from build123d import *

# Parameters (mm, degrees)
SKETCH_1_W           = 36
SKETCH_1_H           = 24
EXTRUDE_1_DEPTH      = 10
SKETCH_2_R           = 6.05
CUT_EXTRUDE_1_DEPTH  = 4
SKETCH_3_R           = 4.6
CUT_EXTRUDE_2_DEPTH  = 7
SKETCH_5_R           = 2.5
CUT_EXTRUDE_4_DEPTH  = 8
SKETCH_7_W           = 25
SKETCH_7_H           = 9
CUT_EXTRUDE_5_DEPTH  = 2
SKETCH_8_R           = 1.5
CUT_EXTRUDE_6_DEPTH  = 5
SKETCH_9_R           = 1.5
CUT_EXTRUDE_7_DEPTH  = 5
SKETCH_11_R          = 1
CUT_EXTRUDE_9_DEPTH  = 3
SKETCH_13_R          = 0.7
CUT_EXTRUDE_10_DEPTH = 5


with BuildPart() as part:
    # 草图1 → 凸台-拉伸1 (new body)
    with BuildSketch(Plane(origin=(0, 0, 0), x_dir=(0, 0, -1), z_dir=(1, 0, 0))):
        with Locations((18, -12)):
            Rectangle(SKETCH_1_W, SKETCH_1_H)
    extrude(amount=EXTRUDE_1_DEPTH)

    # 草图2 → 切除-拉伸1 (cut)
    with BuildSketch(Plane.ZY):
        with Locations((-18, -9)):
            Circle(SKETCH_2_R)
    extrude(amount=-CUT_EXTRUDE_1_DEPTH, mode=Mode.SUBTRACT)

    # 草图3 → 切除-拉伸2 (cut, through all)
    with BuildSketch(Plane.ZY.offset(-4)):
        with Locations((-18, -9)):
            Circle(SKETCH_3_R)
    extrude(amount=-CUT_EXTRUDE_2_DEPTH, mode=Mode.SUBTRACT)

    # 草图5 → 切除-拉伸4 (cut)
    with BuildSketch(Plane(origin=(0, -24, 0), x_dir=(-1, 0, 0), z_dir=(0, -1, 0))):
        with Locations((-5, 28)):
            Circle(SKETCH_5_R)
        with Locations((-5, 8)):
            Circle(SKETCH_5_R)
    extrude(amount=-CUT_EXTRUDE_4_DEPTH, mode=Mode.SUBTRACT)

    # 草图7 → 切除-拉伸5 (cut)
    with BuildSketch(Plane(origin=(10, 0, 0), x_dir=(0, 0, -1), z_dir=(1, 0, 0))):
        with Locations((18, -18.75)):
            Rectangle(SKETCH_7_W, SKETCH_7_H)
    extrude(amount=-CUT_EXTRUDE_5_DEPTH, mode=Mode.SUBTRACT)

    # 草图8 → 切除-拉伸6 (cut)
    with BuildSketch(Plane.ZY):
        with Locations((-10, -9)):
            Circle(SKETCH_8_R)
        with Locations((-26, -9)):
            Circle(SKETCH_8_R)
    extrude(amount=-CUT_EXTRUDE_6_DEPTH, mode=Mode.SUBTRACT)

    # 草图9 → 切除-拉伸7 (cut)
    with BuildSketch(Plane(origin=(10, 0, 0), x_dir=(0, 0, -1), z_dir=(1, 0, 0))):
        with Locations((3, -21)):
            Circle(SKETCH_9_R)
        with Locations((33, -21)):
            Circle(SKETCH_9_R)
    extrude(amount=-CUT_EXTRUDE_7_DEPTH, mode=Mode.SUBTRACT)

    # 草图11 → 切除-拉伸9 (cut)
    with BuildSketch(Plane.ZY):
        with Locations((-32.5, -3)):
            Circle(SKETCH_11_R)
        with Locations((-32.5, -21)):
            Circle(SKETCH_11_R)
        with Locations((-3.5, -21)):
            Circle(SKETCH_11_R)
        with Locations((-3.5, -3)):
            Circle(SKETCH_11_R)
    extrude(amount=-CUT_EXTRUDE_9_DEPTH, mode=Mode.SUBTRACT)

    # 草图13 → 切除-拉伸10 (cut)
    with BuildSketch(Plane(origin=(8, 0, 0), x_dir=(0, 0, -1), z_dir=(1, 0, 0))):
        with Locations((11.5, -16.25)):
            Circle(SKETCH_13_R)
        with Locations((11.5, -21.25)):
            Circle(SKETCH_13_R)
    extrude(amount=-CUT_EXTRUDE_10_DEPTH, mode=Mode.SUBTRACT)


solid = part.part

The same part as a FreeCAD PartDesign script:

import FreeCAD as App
import Part
import Sketcher

V = App.Vector
Q = App.Units.Quantity

doc = App.newDocument("Part")
body = doc.addObject("PartDesign::Body", "Body")

# Sketch on YZ plane
sketch1 = body.newObject("Sketcher::SketchObject", "Sketch")
sketch1.AttachmentSupport = (doc.getObject("YZ_Plane"), [""])
sketch1.MapMode = "FlatFace"
sketch1.addGeometry([
    Part.LineSegment(V(0, 0, 0), V(-24, 0, 0)),
    Part.LineSegment(V(-24, 0, 0), V(-24, -36, 0)),
    Part.LineSegment(V(-24, -36, 0), V(0, -36, 0)),
    Part.LineSegment(V(0, -36, 0), V(0, 0, 0)),
], False)
sketch1.addConstraint([
    Sketcher.Constraint("Coincident", 0, 2, 1, 1),
    Sketcher.Constraint("Coincident", 1, 2, 2, 1),
    Sketcher.Constraint("Coincident", 2, 2, 3, 1),
    Sketcher.Constraint("Coincident", 3, 2, 0, 1),
    Sketcher.Constraint("Horizontal", 0),
    Sketcher.Constraint("Vertical", 1),
    Sketcher.Constraint("Horizontal", 2),
    Sketcher.Constraint("Vertical", 3),
    Sketcher.Constraint("Coincident", 3, 2, -1, 1),
    Sketcher.Constraint("DistanceX", 0, 2, 0, 1, Q("24 mm")),
    Sketcher.Constraint("DistanceY", 1, 2, 1, 1, Q("36 mm")),
])
pad1 = body.newObject("PartDesign::Pad", "Pad")
pad1.Profile = sketch1
pad1.Length = 10

# Sketch on YZ plane
sketch2 = body.newObject("Sketcher::SketchObject", "Sketch001")
sketch2.AttachmentSupport = (doc.getObject("YZ_Plane"), [""])
sketch2.MapMode = "FlatFace"
sketch2.addGeometry(Part.Circle(V(-9, -18, 0), V(0, 0, 1), 6), False)
sketch2.addConstraint([
    Sketcher.Constraint("Diameter", 0, Q("12.1 mm")),
    Sketcher.Constraint("DistanceX", 0, 3, -1, 1, Q("9 mm")),
    Sketcher.Constraint("DistanceY", 0, 3, -1, 1, Q("18 mm")),
])
pocket1 = body.newObject("PartDesign::Pocket", "Pocket")
pocket1.Profile = sketch2
pocket1.Length = 4
pocket1.Reversed = True

# Sketch on YZ plane
sketch3 = body.newObject("Sketcher::SketchObject", "Sketch002")
sketch3.AttachmentSupport = (doc.getObject("YZ_Plane"), [""])
sketch3.MapMode = "FlatFace"
sketch3.AttachmentOffset = App.Placement(V(0, 0, 4), App.Rotation())
sketch3.addGeometry(Part.Circle(V(-9, -18, 0), V(0, 0, 1), 4.6), False)
sketch3.addConstraint([
    Sketcher.Constraint("Diameter", 0, Q("9.2 mm")),
    Sketcher.Constraint("DistanceX", 0, 3, -1, 1, Q("9 mm")),
    Sketcher.Constraint("DistanceY", 0, 3, -1, 1, Q("18 mm")),
])
pocket2 = body.newObject("PartDesign::Pocket", "Pocket001")
pocket2.Profile = sketch3
pocket2.Type = "ThroughAll"
pocket2.Reversed = True

# Sketch on XZ plane
sketch4 = body.newObject("Sketcher::SketchObject", "Sketch003")
sketch4.AttachmentSupport = (doc.getObject("XZ_Plane"), [""])
sketch4.MapMode = "FlatFace"
sketch4.AttachmentOffset = App.Placement(V(0, 0, 24), App.Rotation())
sketch4.addGeometry([
    Part.Circle(V(5, -28, 0), V(0, 0, 1), 2.5),
    Part.Circle(V(5, -8, 0), V(0, 0, 1), 2.5),
], False)
sketch4.addConstraint([
    Sketcher.Constraint("Equal", 0, 1),
    Sketcher.Constraint("Vertical", 0, 3, 1, 3),
    Sketcher.Constraint("Diameter", 0, Q("5 mm")),
    Sketcher.Constraint("DistanceX", -1, 1, 0, 3, Q("5 mm")),
    Sketcher.Constraint("DistanceY", 0, 3, -1, 1, Q("28 mm")),
    Sketcher.Constraint("DistanceY", 1, 3, -1, 1, Q("8 mm")),
])
pocket3 = body.newObject("PartDesign::Pocket", "Pocket002")
pocket3.Profile = sketch4
pocket3.Length = 8

# Sketch on YZ plane
sketch5 = body.newObject("Sketcher::SketchObject", "Sketch004")
sketch5.AttachmentSupport = (doc.getObject("YZ_Plane"), [""])
sketch5.MapMode = "FlatFace"
sketch5.AttachmentOffset = App.Placement(V(0, 0, 10), App.Rotation())
sketch5.addGeometry([
    Part.LineSegment(V(-14, -6, 0), V(-23, -6, 0)),
    Part.LineSegment(V(-23, -6, 0), V(-23, -30, 0)),
    Part.LineSegment(V(-23, -30, 0), V(-14, -30, 0)),
    Part.LineSegment(V(-14, -30, 0), V(-14, -6, 0)),
], False)
sketch5.addConstraint([
    Sketcher.Constraint("Coincident", 0, 2, 1, 1),
    Sketcher.Constraint("Coincident", 1, 2, 2, 1),
    Sketcher.Constraint("Coincident", 2, 2, 3, 1),
    Sketcher.Constraint("Coincident", 3, 2, 0, 1),
    Sketcher.Constraint("Horizontal", 0),
    Sketcher.Constraint("Vertical", 1),
    Sketcher.Constraint("Horizontal", 2),
    Sketcher.Constraint("Vertical", 3),
    Sketcher.Constraint("DistanceX", 0, 2, 0, 1, Q("9 mm")),
    Sketcher.Constraint("DistanceY", 1, 2, 1, 1, Q("25 mm")),
    Sketcher.Constraint("DistanceY", 0, 2, -1, 1, Q("5.5 mm")),
    Sketcher.Constraint("DistanceX", 0, 2, -1, 1, Q("23.25 mm")),
])
pocket4 = body.newObject("PartDesign::Pocket", "Pocket003")
pocket4.Profile = sketch5
pocket4.Length = 2

# Sketch on YZ plane
sketch6 = body.newObject("Sketcher::SketchObject", "Sketch005")
sketch6.AttachmentSupport = (doc.getObject("YZ_Plane"), [""])
sketch6.MapMode = "FlatFace"
sketch6.addGeometry([
    Part.Circle(V(-9, -10, 0), V(0, 0, 1), 1.5),
    Part.Circle(V(-9, -26, 0), V(0, 0, 1), 1.5),
], False)
sketch6.addConstraint([
    Sketcher.Constraint("Equal", 0, 1),
    Sketcher.Constraint("Vertical", 0, 3, 1, 3),
    Sketcher.Constraint("Diameter", 0, Q("3 mm")),
    Sketcher.Constraint("DistanceX", 0, 3, -1, 1, Q("9 mm")),
    Sketcher.Constraint("DistanceY", 0, 3, -1, 1, Q("10 mm")),
    Sketcher.Constraint("DistanceY", 1, 3, -1, 1, Q("26 mm")),
])
pocket5 = body.newObject("PartDesign::Pocket", "Pocket004")
pocket5.Profile = sketch6
pocket5.Length = 5
pocket5.Reversed = True

# Sketch on YZ plane
sketch7 = body.newObject("Sketcher::SketchObject", "Sketch006")
sketch7.AttachmentSupport = (doc.getObject("YZ_Plane"), [""])
sketch7.MapMode = "FlatFace"
sketch7.AttachmentOffset = App.Placement(V(0, 0, 10), App.Rotation())
sketch7.addGeometry([
    Part.Circle(V(-21, -3, 0), V(0, 0, 1), 1.5),
    Part.Circle(V(-21, -33, 0), V(0, 0, 1), 1.5),
], False)
sketch7.addConstraint([
    Sketcher.Constraint("Equal", 0, 1),
    Sketcher.Constraint("Vertical", 0, 3, 1, 3),
    Sketcher.Constraint("Diameter", 0, Q("3 mm")),
    Sketcher.Constraint("DistanceX", 0, 3, -1, 1, Q("21 mm")),
    Sketcher.Constraint("DistanceY", 0, 3, -1, 1, Q("3 mm")),
    Sketcher.Constraint("DistanceY", 1, 3, -1, 1, Q("33 mm")),
])
pocket6 = body.newObject("PartDesign::Pocket", "Pocket005")
pocket6.Profile = sketch7
pocket6.Length = 5

# Sketch on YZ plane
sketch8 = body.newObject("Sketcher::SketchObject", "Sketch007")
sketch8.AttachmentSupport = (doc.getObject("YZ_Plane"), [""])
sketch8.MapMode = "FlatFace"
sketch8.addGeometry([
    Part.Circle(V(-3, -32.5, 0), V(0, 0, 1), 1),
    Part.Circle(V(-21, -32.5, 0), V(0, 0, 1), 1),
    Part.Circle(V(-21, -3.5, 0), V(0, 0, 1), 1),
    Part.Circle(V(-3, -3.5, 0), V(0, 0, 1), 1),
], False)
sketch8.addConstraint([
    Sketcher.Constraint("Equal", 0, 1),
    Sketcher.Constraint("Equal", 1, 2),
    Sketcher.Constraint("Equal", 2, 3),
    Sketcher.Constraint("Horizontal", 0, 3, 1, 3),
    Sketcher.Constraint("Horizontal", 2, 3, 3, 3),
    Sketcher.Constraint("Vertical", 1, 3, 2, 3),
    Sketcher.Constraint("Vertical", 0, 3, 3, 3),
    Sketcher.Constraint("Diameter", 0, Q("2 mm")),
    Sketcher.Constraint("DistanceX", 0, 3, -1, 1, Q("3 mm")),
    Sketcher.Constraint("DistanceX", 1, 3, -1, 1, Q("21 mm")),
    Sketcher.Constraint("DistanceY", 1, 3, 2, 3, Q("29 mm")),
    Sketcher.Constraint("DistanceY", 0, 3, -1, 1, Q("32.5 mm")),
])
pocket7 = body.newObject("PartDesign::Pocket", "Pocket006")
pocket7.Profile = sketch8
pocket7.Length = 3
pocket7.Reversed = True

# Sketch on YZ plane
sketch9 = body.newObject("Sketcher::SketchObject", "Sketch008")
sketch9.AttachmentSupport = (doc.getObject("YZ_Plane"), [""])
sketch9.MapMode = "FlatFace"
sketch9.AttachmentOffset = App.Placement(V(0, 0, 8), App.Rotation())
sketch9.addGeometry([
    Part.Circle(V(-16.2, -11.5, 0), V(0, 0, 1), 0.7),
    Part.Circle(V(-21.2, -11.5, 0), V(0, 0, 1), 0.7),
], False)
sketch9.addConstraint([
    Sketcher.Constraint("Equal", 0, 1),
    Sketcher.Constraint("Horizontal", 0, 3, 1, 3),
    Sketcher.Constraint("Diameter", 0, Q("1.4 mm")),
    Sketcher.Constraint("DistanceX", 1, 3, 0, 3, Q("5 mm")),
    Sketcher.Constraint("DistanceY", 0, 3, -1, 1, Q("11.5 mm")),
    Sketcher.Constraint("DistanceX", 0, 3, -1, 1, Q("16.25 mm")),
])
pocket8 = body.newObject("PartDesign::Pocket", "Pocket007")
pocket8.Profile = sketch9
pocket8.Length = 5

doc.recompute()
